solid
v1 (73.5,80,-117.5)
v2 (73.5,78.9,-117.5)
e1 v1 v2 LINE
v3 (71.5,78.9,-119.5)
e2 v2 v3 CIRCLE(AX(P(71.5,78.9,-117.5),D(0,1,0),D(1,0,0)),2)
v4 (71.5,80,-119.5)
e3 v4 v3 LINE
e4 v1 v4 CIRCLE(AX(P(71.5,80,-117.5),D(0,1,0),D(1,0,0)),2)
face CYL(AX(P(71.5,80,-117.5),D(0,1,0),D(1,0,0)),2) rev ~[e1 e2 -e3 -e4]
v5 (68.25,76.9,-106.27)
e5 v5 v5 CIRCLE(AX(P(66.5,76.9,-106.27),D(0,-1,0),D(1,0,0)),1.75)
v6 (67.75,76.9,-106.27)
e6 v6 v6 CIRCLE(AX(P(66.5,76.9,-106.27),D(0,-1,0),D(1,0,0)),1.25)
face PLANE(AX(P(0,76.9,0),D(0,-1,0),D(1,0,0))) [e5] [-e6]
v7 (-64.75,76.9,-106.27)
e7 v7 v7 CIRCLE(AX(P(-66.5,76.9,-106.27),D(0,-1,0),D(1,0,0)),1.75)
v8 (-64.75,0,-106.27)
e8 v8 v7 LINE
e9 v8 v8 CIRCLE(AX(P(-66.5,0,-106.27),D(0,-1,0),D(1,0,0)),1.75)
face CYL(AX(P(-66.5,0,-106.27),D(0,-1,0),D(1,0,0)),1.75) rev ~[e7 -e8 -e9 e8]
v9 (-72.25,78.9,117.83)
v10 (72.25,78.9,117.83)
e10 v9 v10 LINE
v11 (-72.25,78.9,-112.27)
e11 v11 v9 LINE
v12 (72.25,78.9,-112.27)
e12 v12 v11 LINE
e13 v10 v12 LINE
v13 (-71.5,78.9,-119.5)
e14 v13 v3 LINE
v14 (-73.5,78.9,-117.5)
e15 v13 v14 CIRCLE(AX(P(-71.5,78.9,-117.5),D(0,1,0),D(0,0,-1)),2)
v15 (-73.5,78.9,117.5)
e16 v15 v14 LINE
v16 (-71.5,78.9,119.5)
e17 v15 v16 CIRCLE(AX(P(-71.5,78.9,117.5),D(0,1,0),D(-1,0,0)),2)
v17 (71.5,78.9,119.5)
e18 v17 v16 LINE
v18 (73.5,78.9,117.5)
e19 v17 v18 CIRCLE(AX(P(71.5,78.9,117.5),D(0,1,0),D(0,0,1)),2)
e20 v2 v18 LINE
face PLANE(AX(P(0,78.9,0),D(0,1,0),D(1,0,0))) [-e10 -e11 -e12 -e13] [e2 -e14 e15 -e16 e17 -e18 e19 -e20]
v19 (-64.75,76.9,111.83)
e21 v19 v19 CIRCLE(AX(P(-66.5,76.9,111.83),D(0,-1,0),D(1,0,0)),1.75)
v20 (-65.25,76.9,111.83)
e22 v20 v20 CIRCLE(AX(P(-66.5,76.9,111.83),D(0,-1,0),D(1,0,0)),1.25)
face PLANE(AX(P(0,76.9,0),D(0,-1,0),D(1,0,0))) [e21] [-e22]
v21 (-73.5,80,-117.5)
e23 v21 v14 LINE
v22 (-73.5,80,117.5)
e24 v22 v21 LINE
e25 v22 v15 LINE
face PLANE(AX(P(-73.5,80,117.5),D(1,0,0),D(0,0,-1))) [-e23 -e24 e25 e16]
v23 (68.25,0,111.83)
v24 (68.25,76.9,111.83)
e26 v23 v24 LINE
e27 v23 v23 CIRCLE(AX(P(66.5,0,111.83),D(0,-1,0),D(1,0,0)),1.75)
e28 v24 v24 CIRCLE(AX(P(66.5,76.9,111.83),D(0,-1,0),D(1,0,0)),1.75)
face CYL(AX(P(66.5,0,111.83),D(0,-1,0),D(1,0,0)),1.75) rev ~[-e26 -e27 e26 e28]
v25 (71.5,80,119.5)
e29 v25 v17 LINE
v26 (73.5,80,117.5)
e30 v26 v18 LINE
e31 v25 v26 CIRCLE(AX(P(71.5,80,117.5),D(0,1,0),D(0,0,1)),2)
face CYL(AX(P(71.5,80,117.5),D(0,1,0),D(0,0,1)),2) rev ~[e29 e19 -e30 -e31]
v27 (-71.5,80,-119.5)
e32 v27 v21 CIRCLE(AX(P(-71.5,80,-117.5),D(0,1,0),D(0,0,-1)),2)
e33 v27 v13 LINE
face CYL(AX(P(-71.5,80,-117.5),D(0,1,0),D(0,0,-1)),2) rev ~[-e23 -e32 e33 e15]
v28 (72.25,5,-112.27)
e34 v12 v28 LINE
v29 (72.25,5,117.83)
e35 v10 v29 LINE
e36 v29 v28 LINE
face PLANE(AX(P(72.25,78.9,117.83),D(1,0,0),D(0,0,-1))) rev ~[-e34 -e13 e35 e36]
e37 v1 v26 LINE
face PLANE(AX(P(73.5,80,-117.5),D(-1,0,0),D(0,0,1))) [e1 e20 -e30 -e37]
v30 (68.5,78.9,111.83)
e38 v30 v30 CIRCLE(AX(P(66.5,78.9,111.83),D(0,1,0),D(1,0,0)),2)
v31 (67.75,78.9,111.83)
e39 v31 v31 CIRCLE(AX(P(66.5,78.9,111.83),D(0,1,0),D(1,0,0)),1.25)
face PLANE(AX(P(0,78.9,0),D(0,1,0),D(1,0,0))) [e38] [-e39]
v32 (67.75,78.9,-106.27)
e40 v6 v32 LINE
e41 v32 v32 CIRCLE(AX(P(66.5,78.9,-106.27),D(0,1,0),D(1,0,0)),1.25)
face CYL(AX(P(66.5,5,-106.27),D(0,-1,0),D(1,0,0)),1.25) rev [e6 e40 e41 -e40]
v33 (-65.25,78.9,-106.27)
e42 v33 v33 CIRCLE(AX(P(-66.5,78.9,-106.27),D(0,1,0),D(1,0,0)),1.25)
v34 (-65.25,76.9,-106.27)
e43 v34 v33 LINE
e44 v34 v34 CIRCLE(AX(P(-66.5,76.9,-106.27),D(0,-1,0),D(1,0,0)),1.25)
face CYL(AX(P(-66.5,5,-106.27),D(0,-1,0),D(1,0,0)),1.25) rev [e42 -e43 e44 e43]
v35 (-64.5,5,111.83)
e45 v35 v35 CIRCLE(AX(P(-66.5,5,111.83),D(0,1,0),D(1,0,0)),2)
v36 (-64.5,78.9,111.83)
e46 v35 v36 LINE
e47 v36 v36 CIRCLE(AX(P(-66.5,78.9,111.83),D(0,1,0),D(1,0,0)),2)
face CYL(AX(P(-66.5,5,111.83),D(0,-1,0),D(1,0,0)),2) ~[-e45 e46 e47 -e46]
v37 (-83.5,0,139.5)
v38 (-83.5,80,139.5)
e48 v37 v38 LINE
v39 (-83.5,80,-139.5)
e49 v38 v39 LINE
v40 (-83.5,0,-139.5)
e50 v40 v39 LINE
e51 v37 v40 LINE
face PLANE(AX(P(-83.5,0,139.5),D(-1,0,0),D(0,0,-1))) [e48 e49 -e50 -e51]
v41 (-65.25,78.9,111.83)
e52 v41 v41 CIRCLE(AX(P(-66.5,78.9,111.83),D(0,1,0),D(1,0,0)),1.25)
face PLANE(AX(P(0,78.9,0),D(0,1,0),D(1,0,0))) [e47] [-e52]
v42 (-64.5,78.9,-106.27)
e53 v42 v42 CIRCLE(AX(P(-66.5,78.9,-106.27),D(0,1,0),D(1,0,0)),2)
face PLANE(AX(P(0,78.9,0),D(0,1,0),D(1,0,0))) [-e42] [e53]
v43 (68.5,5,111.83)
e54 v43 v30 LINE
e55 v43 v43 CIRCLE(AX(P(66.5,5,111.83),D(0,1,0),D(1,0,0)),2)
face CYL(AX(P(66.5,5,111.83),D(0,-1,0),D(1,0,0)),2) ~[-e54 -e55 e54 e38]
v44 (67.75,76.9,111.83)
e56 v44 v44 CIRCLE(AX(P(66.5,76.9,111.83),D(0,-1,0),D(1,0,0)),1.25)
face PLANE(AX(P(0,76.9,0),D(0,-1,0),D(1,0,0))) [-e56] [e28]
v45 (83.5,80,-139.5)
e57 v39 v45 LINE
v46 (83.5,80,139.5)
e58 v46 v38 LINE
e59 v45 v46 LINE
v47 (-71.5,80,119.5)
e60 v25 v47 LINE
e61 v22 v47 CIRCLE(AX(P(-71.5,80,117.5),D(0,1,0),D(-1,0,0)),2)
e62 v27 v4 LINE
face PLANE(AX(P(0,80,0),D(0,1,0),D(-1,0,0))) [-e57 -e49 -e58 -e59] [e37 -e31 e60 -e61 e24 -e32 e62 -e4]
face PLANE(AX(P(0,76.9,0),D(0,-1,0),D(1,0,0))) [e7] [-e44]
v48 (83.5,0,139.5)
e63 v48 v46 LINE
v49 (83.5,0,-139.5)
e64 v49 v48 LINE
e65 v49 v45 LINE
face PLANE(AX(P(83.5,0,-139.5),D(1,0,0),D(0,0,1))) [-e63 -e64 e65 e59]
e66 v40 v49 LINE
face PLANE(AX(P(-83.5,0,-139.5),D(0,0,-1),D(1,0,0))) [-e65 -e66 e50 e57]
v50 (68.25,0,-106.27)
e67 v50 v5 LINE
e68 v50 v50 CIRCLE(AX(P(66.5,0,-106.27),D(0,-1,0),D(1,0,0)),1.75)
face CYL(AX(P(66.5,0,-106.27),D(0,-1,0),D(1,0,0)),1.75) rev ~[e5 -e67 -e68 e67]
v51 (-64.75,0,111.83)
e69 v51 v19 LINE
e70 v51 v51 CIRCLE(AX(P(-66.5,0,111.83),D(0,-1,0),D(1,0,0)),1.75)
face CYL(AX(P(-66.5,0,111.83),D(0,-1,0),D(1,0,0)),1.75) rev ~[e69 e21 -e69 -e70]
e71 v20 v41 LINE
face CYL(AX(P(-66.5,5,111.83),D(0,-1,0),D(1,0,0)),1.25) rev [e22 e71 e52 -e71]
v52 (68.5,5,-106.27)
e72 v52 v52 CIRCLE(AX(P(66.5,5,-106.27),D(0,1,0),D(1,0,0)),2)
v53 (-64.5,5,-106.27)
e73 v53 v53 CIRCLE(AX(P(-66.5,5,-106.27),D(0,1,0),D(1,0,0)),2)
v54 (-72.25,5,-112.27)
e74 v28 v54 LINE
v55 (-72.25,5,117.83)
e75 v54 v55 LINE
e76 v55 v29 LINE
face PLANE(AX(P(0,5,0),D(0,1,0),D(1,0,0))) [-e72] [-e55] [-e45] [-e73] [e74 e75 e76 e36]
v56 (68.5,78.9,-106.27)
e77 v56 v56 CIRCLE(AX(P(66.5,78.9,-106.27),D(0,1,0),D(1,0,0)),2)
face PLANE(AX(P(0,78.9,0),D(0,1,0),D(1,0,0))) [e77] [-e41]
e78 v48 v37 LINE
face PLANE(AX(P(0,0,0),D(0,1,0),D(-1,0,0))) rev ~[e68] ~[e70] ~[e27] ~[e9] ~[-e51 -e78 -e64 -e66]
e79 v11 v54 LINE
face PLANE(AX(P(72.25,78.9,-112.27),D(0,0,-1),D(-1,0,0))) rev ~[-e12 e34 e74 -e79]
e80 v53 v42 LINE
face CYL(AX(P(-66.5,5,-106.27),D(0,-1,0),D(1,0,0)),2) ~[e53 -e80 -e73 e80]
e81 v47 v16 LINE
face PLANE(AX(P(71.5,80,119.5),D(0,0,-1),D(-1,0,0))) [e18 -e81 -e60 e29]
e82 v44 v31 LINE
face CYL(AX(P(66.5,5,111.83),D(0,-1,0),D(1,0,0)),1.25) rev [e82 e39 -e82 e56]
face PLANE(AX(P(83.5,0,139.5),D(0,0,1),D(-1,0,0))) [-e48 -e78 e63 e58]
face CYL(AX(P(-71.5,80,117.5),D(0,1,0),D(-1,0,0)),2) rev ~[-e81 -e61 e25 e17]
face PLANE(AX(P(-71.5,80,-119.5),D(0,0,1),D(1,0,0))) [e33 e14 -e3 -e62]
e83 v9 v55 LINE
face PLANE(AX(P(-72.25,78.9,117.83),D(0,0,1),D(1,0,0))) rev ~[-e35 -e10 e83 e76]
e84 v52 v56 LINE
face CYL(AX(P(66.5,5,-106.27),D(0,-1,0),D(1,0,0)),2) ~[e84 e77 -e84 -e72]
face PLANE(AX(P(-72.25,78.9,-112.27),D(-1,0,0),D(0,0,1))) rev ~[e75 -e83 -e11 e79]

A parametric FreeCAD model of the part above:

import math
import FreeCAD as App
import Part
import Sketcher

V = App.Vector

doc = App.newDocument("Part")
body = doc.addObject("PartDesign::Body", "Body")

sketch1 = body.newObject("Sketcher::SketchObject", "Sketch")
sketch1.AttachmentSupport = (doc.getObject("XZ_Plane"), [""])
sketch1.MapMode = "FlatFace"
sketch1.addGeometry([
    Part.LineSegment(V(-83.5, 139.5, 0), V(83.5, 139.5, 0)),
    Part.LineSegment(V(83.5, 139.5, 0), V(83.5, -139.5, 0)),
    Part.LineSegment(V(83.5, -139.5, 0), V(-83.5, -139.5, 0)),
    Part.LineSegment(V(-83.5, -139.5, 0), V(-83.5, 139.5, 0)),
], False)
sketch1.addConstraint([
    Sketcher.Constraint("Coincident", 0, 2, 1, 1),
    Sketcher.Constraint("Coincident", 1, 2, 2, 1),
    Sketcher.Constraint("Coincident", 2, 2, 3, 1),
    Sketcher.Constraint("Coincident", 3, 2, 0, 1),
    Sketcher.Constraint("Horizontal", 0),
    Sketcher.Constraint("Vertical", 1),
    Sketcher.Constraint("Horizontal", 2),
    Sketcher.Constraint("Vertical", 3),
    Sketcher.Constraint("Symmetric", 0, 2, 2, 2, -1, 1),
    Sketcher.Constraint("DistanceX", 0, 1, 0, 2, 167.0),
    Sketcher.Constraint("DistanceY", 1, 2, 1, 1, 279.0),
])
pad1 = body.newObject("PartDesign::Pad", "Pad")
pad1.Profile = sketch1
pad1.Length = 80
pad1.Reversed = True

sketch2 = body.newObject("Sketcher::SketchObject", "Sketch001")
sketch2.AttachmentSupport = (doc.getObject("XZ_Plane"), [""])
sketch2.MapMode = "FlatFace"
sketch2.AttachmentOffset = App.Placement(V(0, 0, -80), App.Rotation())
sketch2.addGeometry([
    Part.LineSegment(V(-71.5, 119.5, 0), V(71.5, 119.5, 0)),
    Part.ArcOfCircle(Part.Circle(V(71.5, 117.5, 0), V(0, 0, 1), 2), math.radians(0), math.radians(90)),
    Part.LineSegment(V(73.5, 117.5, 0), V(73.5, -117.5, 0)),
    Part.ArcOfCircle(Part.Circle(V(71.5, -117.5, 0), V(0, 0, 1), 2), math.radians(-90), math.radians(0)),
    Part.LineSegment(V(71.5, -119.5, 0), V(-71.5, -119.5, 0)),
    Part.ArcOfCircle(Part.Circle(V(-71.5, -117.5, 0), V(0, 0, 1), 2), math.radians(180), math.radians(270)),
    Part.LineSegment(V(-73.5, -117.5, 0), V(-73.5, 117.5, 0)),
    Part.ArcOfCircle(Part.Circle(V(-71.5, 117.5, 0), V(0, 0, 1), 2), math.radians(90), math.radians(180)),
], False)
sketch2.addConstraint([
    Sketcher.Constraint("Tangent", 0, 2, 1, 2),
    Sketcher.Constraint("Tangent", 1, 1, 2, 1),
    Sketcher.Constraint("Tangent", 2, 2, 3, 2),
    Sketcher.Constraint("Tangent", 3, 1, 4, 1),
    Sketcher.Constraint("Tangent", 4, 2, 5, 2),
    Sketcher.Constraint("Tangent", 5, 1, 6, 1),
    Sketcher.Constraint("Tangent", 6, 2, 7, 2),
    Sketcher.Constraint("Tangent", 7, 1, 0, 1),
    Sketcher.Constraint("Horizontal", 0),
    Sketcher.Constraint("Vertical", 2),
    Sketcher.Constraint("Horizontal", 4),
    Sketcher.Constraint("Vertical", 6),
    Sketcher.Constraint("Equal", 1, 3),
    Sketcher.Constraint("Equal", 3, 5),
    Sketcher.Constraint("Equal", 5, 7),
    Sketcher.Constraint("Symmetric", 1, 3, 5, 3, -1, 1),
    Sketcher.Constraint("Radius", 1, 2.0),
    Sketcher.Constraint("DistanceX", 5, 1, 2, 2, 147.0),
    Sketcher.Constraint("DistanceY", 2, 2, 2, 1, 235.0),
])
pocket1 = body.newObject("PartDesign::Pocket", "Pocket")
pocket1.Profile = sketch2
pocket1.Length = 1.1
pocket1.Reversed = True

sketch3 = body.newObject("Sketcher::SketchObject", "Sketch002")
sketch3.AttachmentSupport = (doc.getObject("XZ_Plane"), [""])
sketch3.MapMode = "FlatFace"
sketch3.AttachmentOffset = App.Placement(V(0, 0, -78.9), App.Rotation())
sketch3.addGeometry([
    Part.LineSegment(V(-72.25, -112.27, 0), V(-72.25, 117.83, 0)),
    Part.LineSegment(V(-72.25, 117.83, 0), V(72.25, 117.83, 0)),
    Part.LineSegment(V(72.25, 117.83, 0), V(72.25, -112.27, 0)),
    Part.LineSegment(V(72.25, -112.27, 0), V(-72.25, -112.27, 0)),
], False)
sketch3.addConstraint([
    Sketcher.Constraint("Coincident", 0, 2, 1, 1),
    Sketcher.Constraint("Coincident", 1, 2, 2, 1),
    Sketcher.Constraint("Coincident", 2, 2, 3, 1),
    Sketcher.Constraint("Coincident", 3, 2, 0, 1),
    Sketcher.Constraint("Vertical", 0),
    Sketcher.Constraint("Horizontal", 1),
    Sketcher.Constraint("Vertical", 2),
    Sketcher.Constraint("Horizontal", 3),
    Sketcher.Constraint("DistanceX", 1, 1, 1, 2, 144.5),
    Sketcher.Constraint("DistanceY", 0, 1, 0, 2, 230.1),
    Sketcher.Constraint("DistanceX", 0, 2, -1, 1, 72.25),
    Sketcher.Constraint("DistanceY", -1, 1, 0, 2, 117.83),
])
pocket2 = body.newObject("PartDesign::Pocket", "Pocket001")
pocket2.Profile = sketch3
pocket2.Length = 73.9
pocket2.Reversed = True

sketch4 = body.newObject("Sketcher::SketchObject", "Sketch003")
sketch4.AttachmentSupport = (doc.getObject("XZ_Plane"), [""])
sketch4.MapMode = "FlatFace"
sketch4.AttachmentOffset = App.Placement(V(0, 0, -5), App.Rotation())
sketch4.addGeometry([
    Part.Circle(V(-66.5, 111.83, 0), V(0, 0, 1), 2),
    Part.Circle(V(66.5, 111.83, 0), V(0, 0, 1), 2),
    Part.Circle(V(-66.5, -106.27, 0), V(0, 0, 1), 2),
    Part.Circle(V(66.5, -106.27, 0), V(0, 0, 1), 2),
], False)
sketch4.addConstraint([
    Sketcher.Constraint("Equal", 0, 1),
    Sketcher.Constraint("Equal", 1, 2),
    Sketcher.Constraint("Equal", 2, 3),
    Sketcher.Constraint("Symmetric", 0, 3, 1, 3, -2),
    Sketcher.Constraint("Symmetric", 2, 3, 3, 3, -2),
    Sketcher.Constraint("Vertical", 0, 3, 2, 3),
    Sketcher.Constraint("Diameter", 0, 4.0),
    Sketcher.Constraint("DistanceX", 0, 3, 1, 3, 133.0),
    Sketcher.Constraint("DistanceY", 2, 3, 0, 3, 218.1),
    Sketcher.Constraint("DistanceY", -1, 1, 0, 3, 111.83),
])
pad2 = body.newObject("PartDesign::Pad", "Pad001")
pad2.Profile = sketch4
pad2.Length = 73.9
pad2.Reversed = True

sketch5 = body.newObject("Sketcher::SketchObject", "Sketch004")
sketch5.AttachmentSupport = (doc.getObject("XZ_Plane"), [""])
sketch5.MapMode = "FlatFace"
sketch5.AttachmentOffset = App.Placement(V(0, 0, -5), App.Rotation())
sketch5.addGeometry([
    Part.Circle(V(-66.5, 111.83, 0), V(0, 0, 1), 1.25),
    Part.Circle(V(-66.5, -106.27, 0), V(0, 0, 1), 1.25),
    Part.Circle(V(66.5, -106.27, 0), V(0, 0, 1), 1.25),
    Part.Circle(V(66.5, 111.83, 0), V(0, 0, 1), 1.25),
], False)
sketch5.addConstraint([
    Sketcher.Constraint("Equal", 0, 1),
    Sketcher.Constraint("Equal", 1, 2),
    Sketcher.Constraint("Equal", 2, 3),
    Sketcher.Constraint("Symmetric", 1, 3, 2, 3, -2),
    Sketcher.Constraint("Symmetric", 0, 3, 3, 3, -2),
    Sketcher.Constraint("Vertical", 0, 3, 1, 3),
    Sketcher.Constraint("Diameter", 0, 2.5),
    Sketcher.Constraint("DistanceX", 1, 3, 2, 3, 133.0),
    Sketcher.Constraint("DistanceY", 1, 3, 0, 3, 218.1),
    Sketcher.Constraint("DistanceY", -1, 1, 0, 3, 111.83),
])
pocket3 = body.newObject("PartDesign::Pocket", "Pocket002")
pocket3.Profile = sketch5
pocket3.Type = "ThroughAll"
pocket3.Midplane = True

sketch6 = body.newObject("Sketcher::SketchObject", "Sketch005")
sketch6.AttachmentSupport = (doc.getObject("XZ_Plane"), [""])
sketch6.MapMode = "FlatFace"
sketch6.addGeometry([
    Part.Circle(V(-66.5, -106.27, 0), V(0, 0, 1), 1.75),
    Part.Circle(V(-66.5, 111.83, 0), V(0, 0, 1), 1.75),
    Part.Circle(V(66.5, 111.83, 0), V(0, 0, 1), 1.75),
    Part.Circle(V(66.5, -106.27, 0), V(0, 0, 1), 1.75),
], False)
sketch6.addConstraint([
    Sketcher.Constraint("Equal", 0, 1),
    Sketcher.Constraint("Equal", 1, 2),
    Sketcher.Constraint("Equal", 2, 3),
    Sketcher.Constraint("Symmetric", 1, 3, 2, 3, -2),
    Sketcher.Constraint("Symmetric", 0, 3, 3, 3, -2),
    Sketcher.Constraint("Vertical", 0, 3, 1, 3),
    Sketcher.Constraint("Diameter", 0, 3.5),
    Sketcher.Constraint("DistanceX", 1, 3, 2, 3, 133.0),
    Sketcher.Constraint("DistanceY", 0, 3, 1, 3, 218.1),
    Sketcher.Constraint("DistanceY", 0, 3, -1, 1, 106.27),
])
pocket4 = body.newObject("PartDesign::Pocket", "Pocket003")
pocket4.Profile = sketch6
pocket4.Length = 76.9

doc.recompute()
